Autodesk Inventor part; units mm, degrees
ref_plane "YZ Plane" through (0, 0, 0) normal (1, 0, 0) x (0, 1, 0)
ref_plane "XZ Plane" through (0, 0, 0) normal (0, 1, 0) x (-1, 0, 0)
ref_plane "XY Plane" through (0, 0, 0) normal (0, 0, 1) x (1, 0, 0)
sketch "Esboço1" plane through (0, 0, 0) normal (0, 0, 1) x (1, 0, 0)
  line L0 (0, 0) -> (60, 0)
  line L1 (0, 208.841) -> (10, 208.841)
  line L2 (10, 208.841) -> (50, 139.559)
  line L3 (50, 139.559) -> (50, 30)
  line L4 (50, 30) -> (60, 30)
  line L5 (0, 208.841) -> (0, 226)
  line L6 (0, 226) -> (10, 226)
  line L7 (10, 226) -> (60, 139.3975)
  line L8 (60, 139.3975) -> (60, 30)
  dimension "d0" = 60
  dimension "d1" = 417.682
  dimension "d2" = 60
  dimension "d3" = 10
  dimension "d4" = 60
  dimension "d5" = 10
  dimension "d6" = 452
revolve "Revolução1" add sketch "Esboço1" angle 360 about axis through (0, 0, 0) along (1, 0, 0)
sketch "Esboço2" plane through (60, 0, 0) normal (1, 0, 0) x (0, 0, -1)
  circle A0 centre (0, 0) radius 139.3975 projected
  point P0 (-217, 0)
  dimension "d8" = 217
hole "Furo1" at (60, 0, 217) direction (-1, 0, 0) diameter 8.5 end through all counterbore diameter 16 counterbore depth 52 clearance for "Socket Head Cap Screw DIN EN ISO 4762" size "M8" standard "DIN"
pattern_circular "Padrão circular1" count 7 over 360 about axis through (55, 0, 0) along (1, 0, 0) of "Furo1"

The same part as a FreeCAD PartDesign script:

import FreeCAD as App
import Part
import Sketcher
from FreeCAD import Vector
Q = App.Units.Quantity

doc = App.newDocument("Part")
body = doc.addObject("PartDesign::Body", "Body")

# Sketch on XY plane
sketch1 = body.newObject("Sketcher::SketchObject", "Sketch")
sketch1.AttachmentSupport = (doc.getObject("XY_Plane"), [""])
sketch1.MapMode = "FlatFace"
sketch1.addGeometry(Part.LineSegment(Vector(0, 226, 0), Vector(0, 208.841, 0)), False)
sketch1.addGeometry(Part.LineSegment(Vector(0, 208.841, 0), Vector(10, 208.841, 0)), False)
sketch1.addGeometry(Part.LineSegment(Vector(10, 208.841, 0), Vector(50, 139.559, 0)), False)
sketch1.addGeometry(Part.LineSegment(Vector(50, 139.559, 0), Vector(50, 30, 0)), False)
sketch1.addGeometry(Part.LineSegment(Vector(50, 30, 0), Vector(60, 30, 0)), False)
sketch1.addGeometry(Part.LineSegment(Vector(60, 30, 0), Vector(60, 139.3975, 0)), False)
sketch1.addGeometry(Part.LineSegment(Vector(60, 139.3975, 0), Vector(10, 226, 0)), False)
sketch1.addGeometry(Part.LineSegment(Vector(10, 226, 0), Vector(0, 226, 0)), False)
sketch1.addConstraint(Sketcher.Constraint("Coincident", 0, 2, 1, 1))
sketch1.addConstraint(Sketcher.Constraint("Coincident", 1, 2, 2, 1))
sketch1.addConstraint(Sketcher.Constraint("Coincident", 2, 2, 3, 1))
sketch1.addConstraint(Sketcher.Constraint("Coincident", 3, 2, 4, 1))
sketch1.addConstraint(Sketcher.Constraint("Coincident", 4, 2, 5, 1))
sketch1.addConstraint(Sketcher.Constraint("Coincident", 5, 2, 6, 1))
sketch1.addConstraint(Sketcher.Constraint("Coincident", 6, 2, 7, 1))
sketch1.addConstraint(Sketcher.Constraint("Coincident", 7, 2, 0, 1))
sketch1.addConstraint(Sketcher.Constraint("Vertical", 0))
sketch1.addConstraint(Sketcher.Constraint("Horizontal", 1))
sketch1.addConstraint(Sketcher.Constraint("Vertical", 3))
sketch1.addConstraint(Sketcher.Constraint("Horizontal", 4))
sketch1.addConstraint(Sketcher.Constraint("Vertical", 5))
sketch1.addConstraint(Sketcher.Constraint("Horizontal", 7))
sketch1.addConstraint(Sketcher.Constraint("PointOnObject", 0, 2, -2))
sketch1.addConstraint(Sketcher.Constraint("Parallel", 2, 6))
sketch1.addConstraint(Sketcher.Constraint("Vertical", 1, 2, 6, 2))
sketch1.addConstraint(Sketcher.Constraint("Equal", 1, 4))
sketch1.addConstraint(Sketcher.Constraint("Angle", 2, Q("-60 deg")))
sketch1.addConstraint(Sketcher.Constraint("DistanceX", 1, 1, 1, 2, Q("0.3937 in")))
sketch1.addConstraint(Sketcher.Constraint("DistanceX", -1, 1, 4, 2, Q("2.3622 in")))
sketch1.addConstraint(Sketcher.Constraint("DistanceY", 5, 1, 5, 2, Q("4.307 in")))
sketch1.addConstraint(Sketcher.Constraint("DistanceY", 5, 2, 1, 2, Q("2.734 in")))
sketch1.addConstraint(Sketcher.Constraint("DistanceY", -1, 1, 3, 2, Q("1.1811 in")))
revolution = body.newObject("PartDesign::Revolution", "Revolution")
revolution.Profile = sketch1
revolution.ReferenceAxis = (sketch1, ["H_Axis"])
revolution.Angle = 360

# Sketch on YZ plane
sketch2 = body.newObject("Sketcher::SketchObject", "Sketch001")
sketch2.AttachmentSupport = (doc.getObject("YZ_Plane"), [""])
sketch2.MapMode = "FlatFace"
sketch2.AttachmentOffset = App.Placement(Vector(0, 0, 2.3622047 * 25.4), App.Rotation())
sketch2.addGeometry(Part.Circle(Vector(0, 217, 0), Vector(0, 0, 1), 4.25), False)
sketch2.addConstraint(Sketcher.Constraint("PointOnObject", 0, 3, -2))
sketch2.addConstraint(Sketcher.Constraint("Diameter", 0, Q("8.5 mm")))
sketch2.addConstraint(Sketcher.Constraint("DistanceY", -1, 1, 0, 3, Q("8.5433 in")))
doc.recompute()
hole = body.newObject("PartDesign::Hole", "Hole")
hole.Profile = sketch2
hole.ThreadType = "None"
hole.Diameter = 8.5
hole.DepthType = "ThroughAll"
hole.HoleCutType = "Counterbore"
hole.HoleCutDiameter = 16
hole.HoleCutDepth = 52
doc.recompute()

polarpattern = body.newObject("PartDesign::PolarPattern", "PolarPattern")
polarpattern.Originals = [hole]
polarpattern.Axis = (doc.getObject("X_Axis"), [""])
polarpattern.Angle = 360
polarpattern.Occurrences = 7
body.Tip = polarpattern

doc.recompute()
